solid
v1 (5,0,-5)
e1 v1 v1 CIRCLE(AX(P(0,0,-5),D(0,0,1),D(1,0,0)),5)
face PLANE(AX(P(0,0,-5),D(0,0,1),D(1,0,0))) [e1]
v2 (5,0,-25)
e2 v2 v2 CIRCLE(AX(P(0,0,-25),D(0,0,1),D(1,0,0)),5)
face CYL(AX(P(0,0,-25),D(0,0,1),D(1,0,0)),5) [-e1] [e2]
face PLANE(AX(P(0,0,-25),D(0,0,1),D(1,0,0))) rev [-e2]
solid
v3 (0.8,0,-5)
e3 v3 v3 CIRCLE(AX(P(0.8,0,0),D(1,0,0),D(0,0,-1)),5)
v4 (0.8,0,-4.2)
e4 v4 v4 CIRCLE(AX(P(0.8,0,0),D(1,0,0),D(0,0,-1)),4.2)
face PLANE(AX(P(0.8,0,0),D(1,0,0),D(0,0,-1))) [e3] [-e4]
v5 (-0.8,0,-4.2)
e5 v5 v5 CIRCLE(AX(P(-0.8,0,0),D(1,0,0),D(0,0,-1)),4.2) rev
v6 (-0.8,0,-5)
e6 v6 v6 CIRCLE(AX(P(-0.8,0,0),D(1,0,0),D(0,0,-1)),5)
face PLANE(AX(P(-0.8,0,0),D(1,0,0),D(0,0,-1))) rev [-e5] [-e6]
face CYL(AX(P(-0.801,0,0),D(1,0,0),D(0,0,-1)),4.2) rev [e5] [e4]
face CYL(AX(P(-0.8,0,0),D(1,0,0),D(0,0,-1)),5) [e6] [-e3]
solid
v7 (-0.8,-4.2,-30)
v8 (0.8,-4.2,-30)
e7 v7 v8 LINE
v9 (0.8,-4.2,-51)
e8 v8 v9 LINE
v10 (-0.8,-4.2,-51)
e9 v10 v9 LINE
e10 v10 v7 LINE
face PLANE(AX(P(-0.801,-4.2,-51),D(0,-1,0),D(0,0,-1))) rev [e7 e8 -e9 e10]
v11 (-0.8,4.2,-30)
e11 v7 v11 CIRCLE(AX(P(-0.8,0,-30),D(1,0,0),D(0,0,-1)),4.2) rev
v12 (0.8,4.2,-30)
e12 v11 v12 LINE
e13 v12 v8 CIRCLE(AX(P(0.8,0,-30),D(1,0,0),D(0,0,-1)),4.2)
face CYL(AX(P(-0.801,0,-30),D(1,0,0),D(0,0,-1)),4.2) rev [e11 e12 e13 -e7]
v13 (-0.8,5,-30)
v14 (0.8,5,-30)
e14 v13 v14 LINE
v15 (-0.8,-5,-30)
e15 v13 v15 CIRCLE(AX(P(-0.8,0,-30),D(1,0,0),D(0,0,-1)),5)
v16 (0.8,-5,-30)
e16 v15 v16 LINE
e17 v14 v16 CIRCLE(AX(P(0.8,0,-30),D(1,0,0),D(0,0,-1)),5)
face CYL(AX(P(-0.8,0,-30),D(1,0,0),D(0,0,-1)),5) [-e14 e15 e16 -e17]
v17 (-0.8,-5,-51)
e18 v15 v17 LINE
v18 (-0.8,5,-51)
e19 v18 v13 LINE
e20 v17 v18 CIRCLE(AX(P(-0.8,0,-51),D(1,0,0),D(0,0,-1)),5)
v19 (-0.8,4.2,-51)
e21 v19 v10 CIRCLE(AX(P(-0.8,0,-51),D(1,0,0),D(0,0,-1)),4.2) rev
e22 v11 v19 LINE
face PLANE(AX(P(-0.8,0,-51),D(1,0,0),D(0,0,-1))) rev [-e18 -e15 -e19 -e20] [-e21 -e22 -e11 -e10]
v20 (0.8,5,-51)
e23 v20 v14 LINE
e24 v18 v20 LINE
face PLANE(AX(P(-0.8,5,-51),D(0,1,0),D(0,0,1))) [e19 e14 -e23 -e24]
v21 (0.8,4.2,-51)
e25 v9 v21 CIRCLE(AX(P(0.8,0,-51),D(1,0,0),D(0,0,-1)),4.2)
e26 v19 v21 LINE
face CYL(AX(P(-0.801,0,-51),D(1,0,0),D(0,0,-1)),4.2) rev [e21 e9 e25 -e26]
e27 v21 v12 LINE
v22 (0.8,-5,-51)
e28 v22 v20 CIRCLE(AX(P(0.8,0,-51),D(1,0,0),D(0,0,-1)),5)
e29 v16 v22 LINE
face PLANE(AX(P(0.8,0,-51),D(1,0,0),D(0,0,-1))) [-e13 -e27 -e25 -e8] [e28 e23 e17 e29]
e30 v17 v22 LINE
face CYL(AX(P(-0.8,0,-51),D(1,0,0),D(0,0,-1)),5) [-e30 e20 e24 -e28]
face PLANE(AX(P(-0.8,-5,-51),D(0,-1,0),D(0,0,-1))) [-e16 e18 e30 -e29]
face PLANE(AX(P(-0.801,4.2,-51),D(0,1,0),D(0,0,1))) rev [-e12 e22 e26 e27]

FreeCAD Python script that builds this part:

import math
import FreeCAD as App
import Part
import Sketcher

V = App.Vector
Q = App.Units.Quantity

doc = App.newDocument("Part")
body = doc.addObject("PartDesign::Body", "Body")

# Sketch on YZ plane
sketch1 = body.newObject("Sketcher::SketchObject", "Sketch")
sketch1.AttachmentSupport = (doc.getObject("YZ_Plane"), [""])
sketch1.MapMode = "FlatFace"
sketch1.addGeometry(Part.Circle(V(0, 0, 0), V(0, 0, 1), 5), False)
sketch1.addConstraint(Sketcher.Constraint("Coincident", 0, 3, -1, 1))
sketch1.addConstraint(Sketcher.Constraint("Diameter", 0, Q("10 mm")))
pad1 = body.newObject("PartDesign::Pad", "Pad")
pad1.Profile = sketch1
pad1.Type = "TwoLengths"
pad1.Length = 0.8
pad1.Length2 = 0.8
body2 = doc.addObject("PartDesign::Body", "Body001")

# Sketch on YZ plane
sketch2 = body2.newObject("Sketcher::SketchObject", "Sketch001")
sketch2.AttachmentSupport = (doc.getObject("YZ_Plane001"), [""])
sketch2.MapMode = "FlatFace"
sketch2.addGeometry(Part.LineSegment(V(-5, -30, 0), V(-5, -51, 0)), False)
sketch2.addGeometry(Part.ArcOfCircle(Part.Circle(V(0, -51, 0), V(0, 0, 1), 5), math.radians(180), math.radians(360)), False)
sketch2.addGeometry(Part.LineSegment(V(5, -51, 0), V(5, -30, 0)), False)
sketch2.addGeometry(Part.ArcOfCircle(Part.Circle(V(0, -30, 0), V(0, 0, 1), 5), math.radians(0), math.radians(180)), False)
sketch2.addConstraint(Sketcher.Constraint("Tangent", 0, 2, 1, 1))
sketch2.addConstraint(Sketcher.Constraint("Tangent", 1, 2, 2, 1))
sketch2.addConstraint(Sketcher.Constraint("Tangent", 2, 2, 3, 1))
sketch2.addConstraint(Sketcher.Constraint("Tangent", 3, 2, 0, 1))
sketch2.addConstraint(Sketcher.Constraint("Vertical", 0))
sketch2.addConstraint(Sketcher.Constraint("Vertical", 2))
sketch2.addConstraint(Sketcher.Constraint("PointOnObject", 1, 3, -2))
sketch2.addConstraint(Sketcher.Constraint("Radius", 1, Q("5 mm")))
sketch2.addConstraint(Sketcher.Constraint("DistanceY", 0, 2, 0, 1, Q("21 mm")))
sketch2.addConstraint(Sketcher.Constraint("DistanceY", 1, 3, -1, 1, Q("51 mm")))
pad2 = body2.newObject("PartDesign::Pad", "Pad001")
pad2.Profile = sketch2
pad2.Type = "TwoLengths"
pad2.Length = 0.8
pad2.Length2 = 0.8
body3 = doc.addObject("PartDesign::Body", "Body002")
body3.AllowCompound = True

# Sketch on YZ plane
sketch3 = body3.newObject("Sketcher::SketchObject", "Sketch002")
sketch3.AttachmentSupport = (doc.getObject("YZ_Plane002"), [""])
sketch3.MapMode = "FlatFace"
sketch3.AttachmentOffset = App.Placement(V(0, 0, 0.8), App.Rotation())
sketch3.addGeometry(Part.Circle(V(0, 0, 0), V(0, 0, 1), 4.2), False)
sketch3.addGeometry(Part.LineSegment(V(-4.2, -30, 0), V(-4.2, -51, 0)), False)
sketch3.addGeometry(Part.ArcOfCircle(Part.Circle(V(0, -51, 0), V(0, 0, 1), 4.2), math.radians(180), math.radians(360)), False)
sketch3.addGeometry(Part.LineSegment(V(4.2, -51, 0), V(4.2, -30, 0)), False)
sketch3.addGeometry(Part.ArcOfCircle(Part.Circle(V(0, -30, 0), V(0, 0, 1), 4.2), math.radians(0), math.radians(180)), False)
sketch3.addConstraint(Sketcher.Constraint("Tangent", 1, 2, 2, 1))
sketch3.addConstraint(Sketcher.Constraint("Tangent", 2, 2, 3, 1))
sketch3.addConstraint(Sketcher.Constraint("Tangent", 3, 2, 4, 1))
sketch3.addConstraint(Sketcher.Constraint("Tangent", 4, 2, 1, 1))
sketch3.addConstraint(Sketcher.Constraint("Vertical", 1))
sketch3.addConstraint(Sketcher.Constraint("Vertical", 3))
sketch3.addConstraint(Sketcher.Constraint("Coincident", 0, 3, -1, 1))
sketch3.addConstraint(Sketcher.Constraint("Equal", 0, 2))
sketch3.addConstraint(Sketcher.Constraint("PointOnObject", 2, 3, -2))
sketch3.addConstraint(Sketcher.Constraint("Diameter", 0, Q("8.4 mm")))
sketch3.addConstraint(Sketcher.Constraint("DistanceY", 1, 2, 1, 1, Q("21 mm")))
sketch3.addConstraint(Sketcher.Constraint("DistanceY", 2, 3, -1, 1, Q("51 mm")))
pad3 = body3.newObject("PartDesign::Pad", "Pad002")
pad3.Profile = sketch3
pad3.Length = 1.6
pad3.Reversed = True
doc.recompute()

body4 = doc.addObject("PartDesign::Body", "Body003")
body4.BaseFeature = body3
boolean = body.newObject("PartDesign::Boolean", "Boolean")
boolean.Type = "Cut"
boolean.addObjects([body4])
doc.recompute()

boolean2 = body2.newObject("PartDesign::Boolean", "Boolean001")
boolean2.Type = "Cut"
boolean2.addObjects([body3])
body5 = doc.addObject("PartDesign::Body", "Body004")

# Sketch on XY plane
sketch4 = body5.newObject("Sketcher::SketchObject", "Sketch003")
sketch4.AttachmentSupport = (doc.getObject("XY_Plane004"), [""])
sketch4.MapMode = "FlatFace"
sketch4.AttachmentOffset = App.Placement(V(0, 0, -5), App.Rotation())
sketch4.addGeometry(Part.Circle(V(0, 0, 0), V(0, 0, 1), 5), False)
sketch4.addConstraint(Sketcher.Constraint("Coincident", 0, 3, -1, 1))
sketch4.addConstraint(Sketcher.Constraint("Diameter", 0, Q("10 mm")))
pad4 = body5.newObject("PartDesign::Pad", "Pad003")
pad4.Profile = sketch4
pad4.Length = 20
pad4.Reversed = True

doc.recompute()
